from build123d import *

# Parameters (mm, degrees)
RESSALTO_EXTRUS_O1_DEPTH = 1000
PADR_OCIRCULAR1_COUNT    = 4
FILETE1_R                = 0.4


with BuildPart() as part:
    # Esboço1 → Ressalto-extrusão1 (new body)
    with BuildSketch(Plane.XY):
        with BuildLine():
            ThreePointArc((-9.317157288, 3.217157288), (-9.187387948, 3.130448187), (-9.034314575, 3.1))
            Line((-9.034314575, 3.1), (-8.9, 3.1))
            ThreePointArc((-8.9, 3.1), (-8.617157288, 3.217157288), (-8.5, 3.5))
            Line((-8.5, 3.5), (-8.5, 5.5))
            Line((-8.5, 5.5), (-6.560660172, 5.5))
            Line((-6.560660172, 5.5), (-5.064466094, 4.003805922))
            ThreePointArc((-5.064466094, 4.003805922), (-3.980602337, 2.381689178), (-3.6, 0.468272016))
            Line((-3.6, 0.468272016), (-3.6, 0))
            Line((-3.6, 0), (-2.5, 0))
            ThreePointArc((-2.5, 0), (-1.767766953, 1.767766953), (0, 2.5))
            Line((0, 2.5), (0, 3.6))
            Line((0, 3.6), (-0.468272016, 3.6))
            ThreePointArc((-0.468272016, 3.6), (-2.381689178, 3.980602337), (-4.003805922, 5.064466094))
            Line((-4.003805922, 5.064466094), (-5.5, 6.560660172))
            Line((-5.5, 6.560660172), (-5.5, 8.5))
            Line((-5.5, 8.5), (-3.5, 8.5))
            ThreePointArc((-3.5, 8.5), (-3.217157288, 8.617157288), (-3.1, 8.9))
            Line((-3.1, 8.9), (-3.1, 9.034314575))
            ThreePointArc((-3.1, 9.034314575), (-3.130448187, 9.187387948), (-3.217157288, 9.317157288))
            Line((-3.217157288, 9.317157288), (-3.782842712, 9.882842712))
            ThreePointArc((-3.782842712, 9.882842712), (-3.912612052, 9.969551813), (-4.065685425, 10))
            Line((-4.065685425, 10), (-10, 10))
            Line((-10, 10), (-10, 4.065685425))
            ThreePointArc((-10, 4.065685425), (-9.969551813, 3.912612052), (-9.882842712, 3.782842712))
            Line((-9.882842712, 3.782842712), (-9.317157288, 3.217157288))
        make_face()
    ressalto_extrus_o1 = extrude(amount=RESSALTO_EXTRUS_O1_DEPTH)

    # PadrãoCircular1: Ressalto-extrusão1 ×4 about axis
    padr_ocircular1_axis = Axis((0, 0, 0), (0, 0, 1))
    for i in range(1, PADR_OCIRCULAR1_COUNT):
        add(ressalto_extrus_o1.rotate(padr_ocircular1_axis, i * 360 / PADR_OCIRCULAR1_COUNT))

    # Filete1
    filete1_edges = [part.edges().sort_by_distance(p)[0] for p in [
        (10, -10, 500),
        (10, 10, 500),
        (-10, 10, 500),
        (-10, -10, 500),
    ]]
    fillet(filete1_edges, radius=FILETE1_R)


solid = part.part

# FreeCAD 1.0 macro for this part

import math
import FreeCAD as App
import Part
import Sketcher

V = App.Vector


def edges_at(feature, points):
    """Names of the edges that pass closest to the given points."""
    edges = feature.Shape.Edges
    near = lambda p: min(range(len(edges)), key=lambda i: edges[i].distToShape(Part.Vertex(*p))[0])
    return sorted({f"Edge{near(p) + 1}" for p in points})

doc = App.newDocument("Part")
body = doc.addObject("PartDesign::Body", "Body")

# Sketch on XY plane
sketch1 = doc.addObject("Sketcher::SketchObject", "Sketch")
body.addObject(sketch1)
sketch1.AttachmentSupport = (doc.XY_Plane, [""])
sketch1.MapMode = "FlatFace"
sketch1.addGeometry([
    Part.ArcOfCircle(Part.Circle(V(-9.03, 3.5, 0), V(0, 0, 1), 0.4), math.radians(-135), math.radians(-90)),  # 0
    Part.LineSegment(V(-9.03, 3.1, 0), V(-8.9, 3.1, 0)),  # 1
    Part.ArcOfCircle(Part.Circle(V(-8.9, 3.5, 0), V(0, 0, 1), 0.4), math.radians(-90), math.radians(0)),  # 2
    Part.LineSegment(V(-8.5, 3.5, 0), V(-8.5, 5.5, 0)),  # 3
    Part.LineSegment(V(-8.5, 5.5, 0), V(-6.56, 5.5, 0)),  # 4
    Part.LineSegment(V(-6.56, 5.5, 0), V(-5.06, 4, 0)),  # 5
    Part.ArcOfCircle(Part.Circle(V(-8.6, 0.47, 0), V(0, 0, 1), 5), math.radians(0), math.radians(45)),  # 6
    Part.LineSegment(V(-3.6, 0.47, 0), V(-3.6, 0, 0)),  # 7
    Part.LineSegment(V(-3.6, 0, 0), V(-2.5, 0, 0)),  # 8
    Part.ArcOfCircle(Part.Circle(V(0, 0, 0), V(0, 0, 1), 2.5), math.radians(90), math.radians(180)),  # 9
    Part.LineSegment(V(0, 2.5, 0), V(0, 3.6, 0)),  # 10
    Part.LineSegment(V(0, 3.6, 0), V(-0.47, 3.6, 0)),  # 11
    Part.ArcOfCircle(Part.Circle(V(-0.47, 8.6, 0), V(0, 0, 1), 5), math.radians(-135), math.radians(-90)),  # 12
    Part.LineSegment(V(-4, 5.06, 0), V(-5.5, 6.56, 0)),  # 13
    Part.LineSegment(V(-5.5, 6.56, 0), V(-5.5, 8.5, 0)),  # 14
    Part.LineSegment(V(-5.5, 8.5, 0), V(-3.5, 8.5, 0)),  # 15
    Part.ArcOfCircle(Part.Circle(V(-3.5, 8.9, 0), V(0, 0, 1), 0.4), math.radians(-90), math.radians(0)),  # 16
    Part.LineSegment(V(-3.1, 8.9, 0), V(-3.1, 9.03, 0)),  # 17
    Part.ArcOfCircle(Part.Circle(V(-3.5, 9.03, 0), V(0, 0, 1), 0.4), math.radians(0), math.radians(45)),  # 18
    Part.LineSegment(V(-3.22, 9.32, 0), V(-3.78, 9.88, 0)),  # 19
    Part.ArcOfCircle(Part.Circle(V(-4.07, 9.6, 0), V(0, 0, 1), 0.4), math.radians(45), math.radians(90)),  # 20
    Part.LineSegment(V(-4.07, 10, 0), V(-10, 10, 0)),  # 21
    Part.LineSegment(V(-10, 10, 0), V(-10, 4.07, 0)),  # 22
    Part.ArcOfCircle(Part.Circle(V(-9.6, 4.07, 0), V(0, 0, 1), 0.4), math.radians(180), math.radians(225)),  # 23
    Part.LineSegment(V(-9.88, 3.78, 0), V(-9.32, 3.22, 0)),  # 24
], False)
sketch1.addConstraint([
    Sketcher.Constraint("Tangent", 0, 2, 1, 1),
    Sketcher.Constraint("Tangent", 1, 2, 2, 1),
    Sketcher.Constraint("Tangent", 2, 2, 3, 1),
    Sketcher.Constraint("Coincident", 3, 2, 4, 1),
    Sketcher.Constraint("Coincident", 4, 2, 5, 1),
    Sketcher.Constraint("Tangent", 5, 2, 6, 2),
    Sketcher.Constraint("Tangent", 6, 1, 7, 1),
    Sketcher.Constraint("Coincident", 7, 2, 8, 1),
    Sketcher.Constraint("Coincident", 8, 2, 9, 2),
    Sketcher.Constraint("Coincident", 9, 1, 10, 1),
    Sketcher.Constraint("Coincident", 10, 2, 11, 1),
    Sketcher.Constraint("Tangent", 11, 2, 12, 2),
    Sketcher.Constraint("Tangent", 12, 1, 13, 1),
    Sketcher.Constraint("Coincident", 13, 2, 14, 1),
    Sketcher.Constraint("Coincident", 14, 2, 15, 1),
    Sketcher.Constraint("Tangent", 15, 2, 16, 1),
    Sketcher.Constraint("Tangent", 16, 2, 17, 1),
    Sketcher.Constraint("Tangent", 17, 2, 18, 1),
    Sketcher.Constraint("Tangent", 18, 2, 19, 1),
    Sketcher.Constraint("Tangent", 19, 2, 20, 1),
    Sketcher.Constraint("Tangent", 20, 2, 21, 1),
    Sketcher.Constraint("Coincident", 21, 2, 22, 1),
    Sketcher.Constraint("Tangent", 22, 2, 23, 1),
    Sketcher.Constraint("Tangent", 23, 2, 24, 1),
    Sketcher.Constraint("Tangent", 24, 2, 0, 1),
    Sketcher.Constraint("Horizontal", 1),
    Sketcher.Constraint("Vertical", 3),
    Sketcher.Constraint("Horizontal", 4),
    Sketcher.Constraint("Vertical", 7),
    Sketcher.Constraint("Horizontal", 8),
    Sketcher.Constraint("Vertical", 10),
    Sketcher.Constraint("Horizontal", 11),
    Sketcher.Constraint("Vertical", 14),
    Sketcher.Constraint("Horizontal", 15),
    Sketcher.Constraint("Vertical", 17),
    Sketcher.Constraint("Horizontal", 21),
    Sketcher.Constraint("Vertical", 22),
    Sketcher.Constraint("Coincident", 9, 3, -1, 1),
    Sketcher.Constraint("Equal", 0, 2),
    Sketcher.Constraint("Equal", 6, 12),
    Sketcher.Constraint("Equal", 2, 16),
    Sketcher.Constraint("Equal", 16, 18),
    Sketcher.Constraint("Equal", 18, 20),
    Sketcher.Constraint("Equal", 20, 23),
    Sketcher.Constraint("PointOnObject", 7, 2, -1),
    Sketcher.Constraint("PointOnObject", 9, 1, -2),
    Sketcher.Constraint("Parallel", 5, 13),
    Sketcher.Constraint("Parallel", 13, 19),
    Sketcher.Constraint("Parallel", 19, 24),
    Sketcher.Constraint("Equal", 15, 3),
    Sketcher.Constraint("Equal", 11, 7),
    Sketcher.Constraint("Equal", 8, 10),
    Sketcher.Constraint("Equal", 4, 14),
    Sketcher.Constraint("Equal", 1, 17),
    Sketcher.Constraint("Equal", 21, 22),
    Sketcher.Constraint("Equal", 5, 13),
    Sketcher.Constraint("Equal", 19, 24),
    Sketcher.Constraint("Radius", 6, 5.0),
    Sketcher.Constraint("Radius", 0, 0.4),
    Sketcher.Constraint("Radius", 9, 2.5),
    Sketcher.Constraint("DistanceX", 15, 1, 15, 2, 2.0),
    Sketcher.Constraint("DistanceX", 8, 1, 8, 2, 1.1),
    Sketcher.Constraint("DistanceY", -1, 1, 20, 2, 10.0),
    Sketcher.Constraint("DistanceY", 4, 2, 14, 2, 3.0),
    Sketcher.Constraint("Distance", 19, 0.8),
    Sketcher.Constraint("DistanceY", -1, 1, 0, 3, 3.5),
    Sketcher.Constraint("DistanceX", 4, 1, 4, 2, 1.93934),
])
pad1 = doc.addObject("PartDesign::Pad", "Pad")
body.addObject(pad1)
pad1.Profile = sketch1
pad1.Length = 1000
doc.recompute()

polarpattern = doc.addObject("PartDesign::PolarPattern", "PolarPattern")
body.addObject(polarpattern)
polarpattern.Originals = [pad1]
polarpattern.Axis = (doc.Z_Axis, [""])
polarpattern.Angle = 360
polarpattern.Occurrences = 4
body.Tip = polarpattern
doc.recompute()

fillet = doc.addObject("PartDesign::Fillet", "Fillet")
body.addObject(fillet)
fillet.Base = (polarpattern, edges_at(polarpattern, [
    (10, -10, 500),
    (10, 10, 500),
    (-10, 10, 500),
    (-10, -10, 500),
]))
fillet.Radius = 0.4

doc.recompute()
